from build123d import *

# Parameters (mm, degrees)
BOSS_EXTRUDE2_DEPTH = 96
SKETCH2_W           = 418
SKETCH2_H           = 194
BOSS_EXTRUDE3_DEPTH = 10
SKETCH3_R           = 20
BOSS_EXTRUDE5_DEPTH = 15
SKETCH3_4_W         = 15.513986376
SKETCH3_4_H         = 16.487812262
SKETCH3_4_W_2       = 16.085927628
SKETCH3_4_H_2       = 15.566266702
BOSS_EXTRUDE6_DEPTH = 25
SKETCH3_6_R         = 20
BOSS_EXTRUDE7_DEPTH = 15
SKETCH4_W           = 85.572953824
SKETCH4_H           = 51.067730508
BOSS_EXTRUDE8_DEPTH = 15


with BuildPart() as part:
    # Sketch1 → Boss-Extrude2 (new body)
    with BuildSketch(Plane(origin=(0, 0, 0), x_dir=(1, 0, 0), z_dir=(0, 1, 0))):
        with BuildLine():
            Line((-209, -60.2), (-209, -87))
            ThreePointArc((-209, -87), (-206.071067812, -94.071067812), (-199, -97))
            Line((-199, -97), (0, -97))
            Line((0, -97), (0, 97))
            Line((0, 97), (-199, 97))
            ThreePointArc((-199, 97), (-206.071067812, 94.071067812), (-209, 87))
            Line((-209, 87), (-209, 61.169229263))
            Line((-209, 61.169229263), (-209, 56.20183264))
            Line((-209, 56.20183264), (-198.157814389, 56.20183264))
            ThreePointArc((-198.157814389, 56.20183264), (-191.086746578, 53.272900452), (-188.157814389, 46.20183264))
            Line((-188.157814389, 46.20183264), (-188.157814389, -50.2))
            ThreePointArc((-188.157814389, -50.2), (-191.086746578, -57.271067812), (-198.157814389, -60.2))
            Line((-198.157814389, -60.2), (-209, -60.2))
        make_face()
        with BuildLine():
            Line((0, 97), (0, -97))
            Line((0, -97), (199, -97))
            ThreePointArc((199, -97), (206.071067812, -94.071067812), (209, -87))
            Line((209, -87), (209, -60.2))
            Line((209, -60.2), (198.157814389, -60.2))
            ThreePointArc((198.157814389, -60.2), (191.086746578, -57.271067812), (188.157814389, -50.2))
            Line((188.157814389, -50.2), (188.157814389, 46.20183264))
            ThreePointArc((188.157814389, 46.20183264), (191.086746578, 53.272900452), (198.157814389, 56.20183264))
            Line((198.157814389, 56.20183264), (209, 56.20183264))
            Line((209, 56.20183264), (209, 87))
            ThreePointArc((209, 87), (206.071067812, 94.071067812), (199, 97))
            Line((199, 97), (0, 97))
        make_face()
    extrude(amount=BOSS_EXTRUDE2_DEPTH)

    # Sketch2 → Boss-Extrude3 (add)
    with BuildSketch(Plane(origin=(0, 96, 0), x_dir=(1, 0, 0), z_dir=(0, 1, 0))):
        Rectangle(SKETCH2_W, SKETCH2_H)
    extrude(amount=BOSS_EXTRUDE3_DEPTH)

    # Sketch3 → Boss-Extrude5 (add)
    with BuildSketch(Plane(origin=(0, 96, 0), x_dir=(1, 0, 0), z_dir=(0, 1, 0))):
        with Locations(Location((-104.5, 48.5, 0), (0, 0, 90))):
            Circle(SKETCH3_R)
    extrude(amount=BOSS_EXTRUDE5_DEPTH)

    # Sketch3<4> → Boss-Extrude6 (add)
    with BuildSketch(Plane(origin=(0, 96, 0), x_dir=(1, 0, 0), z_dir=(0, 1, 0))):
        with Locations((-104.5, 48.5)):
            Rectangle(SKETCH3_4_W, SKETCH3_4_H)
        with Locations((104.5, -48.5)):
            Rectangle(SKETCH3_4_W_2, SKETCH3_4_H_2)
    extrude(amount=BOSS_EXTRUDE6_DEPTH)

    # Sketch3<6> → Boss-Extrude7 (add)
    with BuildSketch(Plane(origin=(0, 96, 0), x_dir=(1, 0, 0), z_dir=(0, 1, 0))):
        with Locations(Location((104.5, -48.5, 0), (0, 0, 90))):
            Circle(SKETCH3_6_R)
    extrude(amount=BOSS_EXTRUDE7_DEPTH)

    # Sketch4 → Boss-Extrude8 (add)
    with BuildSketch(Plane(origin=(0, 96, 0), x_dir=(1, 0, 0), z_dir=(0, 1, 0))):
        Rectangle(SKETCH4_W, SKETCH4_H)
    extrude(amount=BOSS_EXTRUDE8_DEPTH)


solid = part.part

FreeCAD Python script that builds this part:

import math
import FreeCAD as App
import Part
import Sketcher
from FreeCAD import Vector


def add_polygon(sketch, points):
    """Adds a closed chain of lines whose ends are joined by coincident constraints."""
    first, n = sketch.GeometryCount, len(points)
    for a, b in zip(points, points[1:] + points[:1]):
        sketch.addGeometry(Part.LineSegment(App.Vector(*a, 0), App.Vector(*b, 0)), False)
    for i in range(n):
        sketch.addConstraint(Sketcher.Constraint("Coincident", first + i, 2, first + (i + 1) % n, 1))

doc = App.newDocument("Part")
body = doc.addObject("PartDesign::Body", "Body")

# Sketch on XZ plane
sketch1 = body.newObject("Sketcher::SketchObject", "Sketch")
sketch1.AttachmentSupport = (doc.getObject("XZ_Plane"), [""])
sketch1.MapMode = "FlatFace"
sketch1.addGeometry(Part.LineSegment(Vector(-209, 60, 0), Vector(-209, 87, 0)), False)
sketch1.addGeometry(Part.ArcOfCircle(Part.Circle(Vector(-199, 87, 0), Vector(0, 0, 1), 10), math.radians(90), math.radians(180)), False)
sketch1.addGeometry(Part.LineSegment(Vector(-199, 97, 0), Vector(199, 97, 0)), False)
sketch1.addGeometry(Part.ArcOfCircle(Part.Circle(Vector(199, 87, 0), Vector(0, 0, 1), 10), math.radians(0), math.radians(90)), False)
sketch1.addGeometry(Part.LineSegment(Vector(209, 87, 0), Vector(209, 60, 0)), False)
sketch1.addGeometry(Part.LineSegment(Vector(209, 60, 0), Vector(198, 60, 0)), False)
sketch1.addGeometry(Part.ArcOfCircle(Part.Circle(Vector(198, 50, 0), Vector(0, 0, 1), 10), math.radians(90), math.radians(180)), False)
sketch1.addGeometry(Part.LineSegment(Vector(188, 50, 0), Vector(188, -46, 0)), False)
sketch1.addGeometry(Part.ArcOfCircle(Part.Circle(Vector(198, -46, 0), Vector(0, 0, 1), 10), math.radians(-180), math.radians(-90)), False)
sketch1.addGeometry(Part.LineSegment(Vector(198, -56, 0), Vector(209, -56, 0)), False)
sketch1.addGeometry(Part.LineSegment(Vector(209, -56, 0), Vector(209, -87, 0)), False)
sketch1.addGeometry(Part.ArcOfCircle(Part.Circle(Vector(199, -87, 0), Vector(0, 0, 1), 10), math.radians(-90), math.radians(0)), False)
sketch1.addGeometry(Part.LineSegment(Vector(199, -97, 0), Vector(-199, -97, 0)), False)
sketch1.addGeometry(Part.ArcOfCircle(Part.Circle(Vector(-199, -87, 0), Vector(0, 0, 1), 10), math.radians(180), math.radians(270)), False)
sketch1.addGeometry(Part.LineSegment(Vector(-209, -87, 0), Vector(-209, -56, 0)), False)
sketch1.addGeometry(Part.LineSegment(Vector(-209, -56, 0), Vector(-198, -56, 0)), False)
sketch1.addGeometry(Part.ArcOfCircle(Part.Circle(Vector(-198, -46, 0), Vector(0, 0, 1), 10), math.radians(-90), math.radians(0)), False)
sketch1.addGeometry(Part.LineSegment(Vector(-188, -46, 0), Vector(-188, 50, 0)), False)
sketch1.addGeometry(Part.ArcOfCircle(Part.Circle(Vector(-198, 50, 0), Vector(0, 0, 1), 10), math.radians(0), math.radians(90)), False)
sketch1.addGeometry(Part.LineSegment(Vector(-198, 60, 0), Vector(-209, 60, 0)), False)
sketch1.addConstraint(Sketcher.Constraint("Tangent", 0, 2, 1, 2))
sketch1.addConstraint(Sketcher.Constraint("Tangent", 1, 1, 2, 1))
sketch1.addConstraint(Sketcher.Constraint("Tangent", 2, 2, 3, 2))
sketch1.addConstraint(Sketcher.Constraint("Tangent", 3, 1, 4, 1))
sketch1.addConstraint(Sketcher.Constraint("Coincident", 4, 2, 5, 1))
sketch1.addConstraint(Sketcher.Constraint("Tangent", 5, 2, 6, 1))
sketch1.addConstraint(Sketcher.Constraint("Tangent", 6, 2, 7, 1))
sketch1.addConstraint(Sketcher.Constraint("Tangent", 7, 2, 8, 1))
sketch1.addConstraint(Sketcher.Constraint("Tangent", 8, 2, 9, 1))
sketch1.addConstraint(Sketcher.Constraint("Coincident", 9, 2, 10, 1))
sketch1.addConstraint(Sketcher.Constraint("Tangent", 10, 2, 11, 2))
sketch1.addConstraint(Sketcher.Constraint("Tangent", 11, 1, 12, 1))
sketch1.addConstraint(Sketcher.Constraint("Tangent", 12, 2, 13, 2))
sketch1.addConstraint(Sketcher.Constraint("Tangent", 13, 1, 14, 1))
sketch1.addConstraint(Sketcher.Constraint("Coincident", 14, 2, 15, 1))
sketch1.addConstraint(Sketcher.Constraint("Tangent", 15, 2, 16, 1))
sketch1.addConstraint(Sketcher.Constraint("Tangent", 16, 2, 17, 1))
sketch1.addConstraint(Sketcher.Constraint("Tangent", 17, 2, 18, 1))
sketch1.addConstraint(Sketcher.Constraint("Tangent", 18, 2, 19, 1))
sketch1.addConstraint(Sketcher.Constraint("Coincident", 19, 2, 0, 1))
sketch1.addConstraint(Sketcher.Constraint("Vertical", 0))
sketch1.addConstraint(Sketcher.Constraint("Horizontal", 2))
sketch1.addConstraint(Sketcher.Constraint("Vertical", 4))
sketch1.addConstraint(Sketcher.Constraint("Horizontal", 5))
sketch1.addConstraint(Sketcher.Constraint("Vertical", 7))
sketch1.addConstraint(Sketcher.Constraint("Horizontal", 9))
sketch1.addConstraint(Sketcher.Constraint("Vertical", 10))
sketch1.addConstraint(Sketcher.Constraint("Horizontal", 12))
sketch1.addConstraint(Sketcher.Constraint("Vertical", 14))
sketch1.addConstraint(Sketcher.Constraint("Horizontal", 15))
sketch1.addConstraint(Sketcher.Constraint("Vertical", 17))
sketch1.addConstraint(Sketcher.Constraint("Horizontal", 19))
sketch1.addConstraint(Sketcher.Constraint("Equal", 1, 3))
sketch1.addConstraint(Sketcher.Constraint("Equal", 3, 6))
sketch1.addConstraint(Sketcher.Constraint("Equal", 6, 8))
sketch1.addConstraint(Sketcher.Constraint("Equal", 8, 11))
sketch1.addConstraint(Sketcher.Constraint("Equal", 11, 13))
sketch1.addConstraint(Sketcher.Constraint("Equal", 13, 16))
sketch1.addConstraint(Sketcher.Constraint("Equal", 16, 18))
sketch1.addConstraint(Sketcher.Constraint("Symmetric", 1, 3, 11, 3, -1, 1))
sketch1.addConstraint(Sketcher.Constraint("Symmetric", 8, 3, 16, 3, -2))
sketch1.addConstraint(Sketcher.Constraint("Symmetric", 4, 2, 19, 2, -2))
sketch1.addConstraint(Sketcher.Constraint("Vertical", 1, 3, 13, 3))
sketch1.addConstraint(Sketcher.Constraint("Radius", 1, 10.0))
sketch1.addConstraint(Sketcher.Constraint("DistanceX", 2, 1, 2, 2, 398.0))
sketch1.addConstraint(Sketcher.Constraint("DistanceY", 0, 1, 0, 2, 26.8))
sketch1.addConstraint(Sketcher.Constraint("DistanceY", -1, 1, 1, 3, 87.0))
sketch1.addConstraint(Sketcher.Constraint("DistanceX", 5, 2, 5, 1, 10.842186))
sketch1.addConstraint(Sketcher.Constraint("DistanceY", 7, 2, 7, 1, 96.401833))
pad1 = body.newObject("PartDesign::Pad", "Pad")
pad1.Profile = sketch1
pad1.Length = 96
pad1.Reversed = True

# Sketch on XZ plane
sketch2 = body.newObject("Sketcher::SketchObject", "Sketch001")
sketch2.AttachmentSupport = (doc.getObject("XZ_Plane"), [""])
sketch2.MapMode = "FlatFace"
sketch2.AttachmentOffset = App.Placement(Vector(0, 0, -96), App.Rotation())
add_polygon(sketch2, [(-209, -97), (-209, 97), (209, 97), (209, -97)])  # lines 0-3
sketch2.addConstraint(Sketcher.Constraint("Vertical", 0))
sketch2.addConstraint(Sketcher.Constraint("Horizontal", 1))
sketch2.addConstraint(Sketcher.Constraint("Vertical", 2))
sketch2.addConstraint(Sketcher.Constraint("Horizontal", 3))
sketch2.addConstraint(Sketcher.Constraint("Symmetric", 0, 2, 2, 2, -1, 1))
sketch2.addConstraint(Sketcher.Constraint("DistanceX", 1, 1, 1, 2, 418.0))
sketch2.addConstraint(Sketcher.Constraint("DistanceY", 0, 1, 0, 2, 194.0))
pad2 = body.newObject("PartDesign::Pad", "Pad001")
pad2.Profile = sketch2
pad2.Length = 10
pad2.Reversed = True

# Sketch on XZ plane
sketch3 = body.newObject("Sketcher::SketchObject", "Sketch002")
sketch3.AttachmentSupport = (doc.getObject("XZ_Plane"), [""])
sketch3.MapMode = "FlatFace"
sketch3.AttachmentOffset = App.Placement(Vector(0, 0, -96), App.Rotation())
sketch3.addGeometry(Part.Circle(Vector(-104, -48, 0), Vector(0, 0, 1), 20), False)
sketch3.addConstraint(Sketcher.Constraint("Diameter", 0, 40.0))
sketch3.addConstraint(Sketcher.Constraint("DistanceX", 0, 3, -1, 1, 104.5))
sketch3.addConstraint(Sketcher.Constraint("DistanceY", 0, 3, -1, 1, 48.5))
pad3 = body.newObject("PartDesign::Pad", "Pad002")
pad3.Profile = sketch3
pad3.Length = 15
pad3.Reversed = True

# Sketch on XZ plane
sketch4 = body.newObject("Sketcher::SketchObject", "Sketch003")
sketch4.AttachmentSupport = (doc.getObject("XZ_Plane"), [""])
sketch4.MapMode = "FlatFace"
sketch4.AttachmentOffset = App.Placement(Vector(0, 0, -96), App.Rotation())
add_polygon(sketch4, [(-112, -57), (-112, -40), (-97, -40), (-97, -57)])  # lines 0-3
add_polygon(sketch4, [(96, 41), (96, 56), (113, 56), (113, 41)])  # lines 4-7
sketch4.addConstraint(Sketcher.Constraint("Vertical", 0))
sketch4.addConstraint(Sketcher.Constraint("Horizontal", 1))
sketch4.addConstraint(Sketcher.Constraint("Vertical", 2))
sketch4.addConstraint(Sketcher.Constraint("Horizontal", 3))
sketch4.addConstraint(Sketcher.Constraint("Vertical", 4))
sketch4.addConstraint(Sketcher.Constraint("Horizontal", 5))
sketch4.addConstraint(Sketcher.Constraint("Vertical", 6))
sketch4.addConstraint(Sketcher.Constraint("Horizontal", 7))
sketch4.addConstraint(Sketcher.Constraint("DistanceX", 1, 1, 1, 2, 15.513986))
sketch4.addConstraint(Sketcher.Constraint("DistanceX", 5, 1, 5, 2, 16.085928))
sketch4.addConstraint(Sketcher.Constraint("DistanceY", 0, 1, 0, 2, 16.487812))
sketch4.addConstraint(Sketcher.Constraint("DistanceY", 4, 1, 4, 2, 15.566267))
sketch4.addConstraint(Sketcher.Constraint("DistanceY", 2, 2, 4, 2, 113.027039))
sketch4.addConstraint(Sketcher.Constraint("DistanceX", 0, 2, 4, 2, 208.714029))
sketch4.addConstraint(Sketcher.Constraint("DistanceX", 0, 2, -1, 1, 112.256993))
sketch4.addConstraint(Sketcher.Constraint("DistanceY", 0, 2, -1, 1, 40.256094))
pad4 = body.newObject("PartDesign::Pad", "Pad003")
pad4.Profile = sketch4
pad4.Length = 25
pad4.Reversed = True

# Sketch on XZ plane
sketch5 = body.newObject("Sketcher::SketchObject", "Sketch004")
sketch5.AttachmentSupport = (doc.getObject("XZ_Plane"), [""])
sketch5.MapMode = "FlatFace"
sketch5.AttachmentOffset = App.Placement(Vector(0, 0, -96), App.Rotation())
sketch5.addGeometry(Part.Circle(Vector(104, 48, 0), Vector(0, 0, 1), 20), False)
sketch5.addConstraint(Sketcher.Constraint("Diameter", 0, 40.0))
sketch5.addConstraint(Sketcher.Constraint("DistanceX", -1, 1, 0, 3, 104.5))
sketch5.addConstraint(Sketcher.Constraint("DistanceY", -1, 1, 0, 3, 48.5))
pad5 = body.newObject("PartDesign::Pad", "Pad004")
pad5.Profile = sketch5
pad5.Length = 15
pad5.Reversed = True

# Sketch on XZ plane
sketch6 = body.newObject("Sketcher::SketchObject", "Sketch005")
sketch6.AttachmentSupport = (doc.getObject("XZ_Plane"), [""])
sketch6.MapMode = "FlatFace"
sketch6.AttachmentOffset = App.Placement(Vector(0, 0, -96), App.Rotation())
add_polygon(sketch6, [(-43, -26), (-43, 26), (43, 26), (43, -26)])  # lines 0-3
sketch6.addConstraint(Sketcher.Constraint("Vertical", 0))
sketch6.addConstraint(Sketcher.Constraint("Horizontal", 1))
sketch6.addConstraint(Sketcher.Constraint("Vertical", 2))
sketch6.addConstraint(Sketcher.Constraint("Horizontal", 3))
sketch6.addConstraint(Sketcher.Constraint("Symmetric", 0, 2, 2, 2, -1, 1))
sketch6.addConstraint(Sketcher.Constraint("DistanceY", 0, 1, 0, 2, 51.067731))
sketch6.addConstraint(Sketcher.Constraint("DistanceX", 1, 1, 1, 2, 85.572954))
pad6 = body.newObject("PartDesign::Pad", "Pad005")
pad6.Profile = sketch6
pad6.Length = 15
pad6.Reversed = True

doc.recompute()
